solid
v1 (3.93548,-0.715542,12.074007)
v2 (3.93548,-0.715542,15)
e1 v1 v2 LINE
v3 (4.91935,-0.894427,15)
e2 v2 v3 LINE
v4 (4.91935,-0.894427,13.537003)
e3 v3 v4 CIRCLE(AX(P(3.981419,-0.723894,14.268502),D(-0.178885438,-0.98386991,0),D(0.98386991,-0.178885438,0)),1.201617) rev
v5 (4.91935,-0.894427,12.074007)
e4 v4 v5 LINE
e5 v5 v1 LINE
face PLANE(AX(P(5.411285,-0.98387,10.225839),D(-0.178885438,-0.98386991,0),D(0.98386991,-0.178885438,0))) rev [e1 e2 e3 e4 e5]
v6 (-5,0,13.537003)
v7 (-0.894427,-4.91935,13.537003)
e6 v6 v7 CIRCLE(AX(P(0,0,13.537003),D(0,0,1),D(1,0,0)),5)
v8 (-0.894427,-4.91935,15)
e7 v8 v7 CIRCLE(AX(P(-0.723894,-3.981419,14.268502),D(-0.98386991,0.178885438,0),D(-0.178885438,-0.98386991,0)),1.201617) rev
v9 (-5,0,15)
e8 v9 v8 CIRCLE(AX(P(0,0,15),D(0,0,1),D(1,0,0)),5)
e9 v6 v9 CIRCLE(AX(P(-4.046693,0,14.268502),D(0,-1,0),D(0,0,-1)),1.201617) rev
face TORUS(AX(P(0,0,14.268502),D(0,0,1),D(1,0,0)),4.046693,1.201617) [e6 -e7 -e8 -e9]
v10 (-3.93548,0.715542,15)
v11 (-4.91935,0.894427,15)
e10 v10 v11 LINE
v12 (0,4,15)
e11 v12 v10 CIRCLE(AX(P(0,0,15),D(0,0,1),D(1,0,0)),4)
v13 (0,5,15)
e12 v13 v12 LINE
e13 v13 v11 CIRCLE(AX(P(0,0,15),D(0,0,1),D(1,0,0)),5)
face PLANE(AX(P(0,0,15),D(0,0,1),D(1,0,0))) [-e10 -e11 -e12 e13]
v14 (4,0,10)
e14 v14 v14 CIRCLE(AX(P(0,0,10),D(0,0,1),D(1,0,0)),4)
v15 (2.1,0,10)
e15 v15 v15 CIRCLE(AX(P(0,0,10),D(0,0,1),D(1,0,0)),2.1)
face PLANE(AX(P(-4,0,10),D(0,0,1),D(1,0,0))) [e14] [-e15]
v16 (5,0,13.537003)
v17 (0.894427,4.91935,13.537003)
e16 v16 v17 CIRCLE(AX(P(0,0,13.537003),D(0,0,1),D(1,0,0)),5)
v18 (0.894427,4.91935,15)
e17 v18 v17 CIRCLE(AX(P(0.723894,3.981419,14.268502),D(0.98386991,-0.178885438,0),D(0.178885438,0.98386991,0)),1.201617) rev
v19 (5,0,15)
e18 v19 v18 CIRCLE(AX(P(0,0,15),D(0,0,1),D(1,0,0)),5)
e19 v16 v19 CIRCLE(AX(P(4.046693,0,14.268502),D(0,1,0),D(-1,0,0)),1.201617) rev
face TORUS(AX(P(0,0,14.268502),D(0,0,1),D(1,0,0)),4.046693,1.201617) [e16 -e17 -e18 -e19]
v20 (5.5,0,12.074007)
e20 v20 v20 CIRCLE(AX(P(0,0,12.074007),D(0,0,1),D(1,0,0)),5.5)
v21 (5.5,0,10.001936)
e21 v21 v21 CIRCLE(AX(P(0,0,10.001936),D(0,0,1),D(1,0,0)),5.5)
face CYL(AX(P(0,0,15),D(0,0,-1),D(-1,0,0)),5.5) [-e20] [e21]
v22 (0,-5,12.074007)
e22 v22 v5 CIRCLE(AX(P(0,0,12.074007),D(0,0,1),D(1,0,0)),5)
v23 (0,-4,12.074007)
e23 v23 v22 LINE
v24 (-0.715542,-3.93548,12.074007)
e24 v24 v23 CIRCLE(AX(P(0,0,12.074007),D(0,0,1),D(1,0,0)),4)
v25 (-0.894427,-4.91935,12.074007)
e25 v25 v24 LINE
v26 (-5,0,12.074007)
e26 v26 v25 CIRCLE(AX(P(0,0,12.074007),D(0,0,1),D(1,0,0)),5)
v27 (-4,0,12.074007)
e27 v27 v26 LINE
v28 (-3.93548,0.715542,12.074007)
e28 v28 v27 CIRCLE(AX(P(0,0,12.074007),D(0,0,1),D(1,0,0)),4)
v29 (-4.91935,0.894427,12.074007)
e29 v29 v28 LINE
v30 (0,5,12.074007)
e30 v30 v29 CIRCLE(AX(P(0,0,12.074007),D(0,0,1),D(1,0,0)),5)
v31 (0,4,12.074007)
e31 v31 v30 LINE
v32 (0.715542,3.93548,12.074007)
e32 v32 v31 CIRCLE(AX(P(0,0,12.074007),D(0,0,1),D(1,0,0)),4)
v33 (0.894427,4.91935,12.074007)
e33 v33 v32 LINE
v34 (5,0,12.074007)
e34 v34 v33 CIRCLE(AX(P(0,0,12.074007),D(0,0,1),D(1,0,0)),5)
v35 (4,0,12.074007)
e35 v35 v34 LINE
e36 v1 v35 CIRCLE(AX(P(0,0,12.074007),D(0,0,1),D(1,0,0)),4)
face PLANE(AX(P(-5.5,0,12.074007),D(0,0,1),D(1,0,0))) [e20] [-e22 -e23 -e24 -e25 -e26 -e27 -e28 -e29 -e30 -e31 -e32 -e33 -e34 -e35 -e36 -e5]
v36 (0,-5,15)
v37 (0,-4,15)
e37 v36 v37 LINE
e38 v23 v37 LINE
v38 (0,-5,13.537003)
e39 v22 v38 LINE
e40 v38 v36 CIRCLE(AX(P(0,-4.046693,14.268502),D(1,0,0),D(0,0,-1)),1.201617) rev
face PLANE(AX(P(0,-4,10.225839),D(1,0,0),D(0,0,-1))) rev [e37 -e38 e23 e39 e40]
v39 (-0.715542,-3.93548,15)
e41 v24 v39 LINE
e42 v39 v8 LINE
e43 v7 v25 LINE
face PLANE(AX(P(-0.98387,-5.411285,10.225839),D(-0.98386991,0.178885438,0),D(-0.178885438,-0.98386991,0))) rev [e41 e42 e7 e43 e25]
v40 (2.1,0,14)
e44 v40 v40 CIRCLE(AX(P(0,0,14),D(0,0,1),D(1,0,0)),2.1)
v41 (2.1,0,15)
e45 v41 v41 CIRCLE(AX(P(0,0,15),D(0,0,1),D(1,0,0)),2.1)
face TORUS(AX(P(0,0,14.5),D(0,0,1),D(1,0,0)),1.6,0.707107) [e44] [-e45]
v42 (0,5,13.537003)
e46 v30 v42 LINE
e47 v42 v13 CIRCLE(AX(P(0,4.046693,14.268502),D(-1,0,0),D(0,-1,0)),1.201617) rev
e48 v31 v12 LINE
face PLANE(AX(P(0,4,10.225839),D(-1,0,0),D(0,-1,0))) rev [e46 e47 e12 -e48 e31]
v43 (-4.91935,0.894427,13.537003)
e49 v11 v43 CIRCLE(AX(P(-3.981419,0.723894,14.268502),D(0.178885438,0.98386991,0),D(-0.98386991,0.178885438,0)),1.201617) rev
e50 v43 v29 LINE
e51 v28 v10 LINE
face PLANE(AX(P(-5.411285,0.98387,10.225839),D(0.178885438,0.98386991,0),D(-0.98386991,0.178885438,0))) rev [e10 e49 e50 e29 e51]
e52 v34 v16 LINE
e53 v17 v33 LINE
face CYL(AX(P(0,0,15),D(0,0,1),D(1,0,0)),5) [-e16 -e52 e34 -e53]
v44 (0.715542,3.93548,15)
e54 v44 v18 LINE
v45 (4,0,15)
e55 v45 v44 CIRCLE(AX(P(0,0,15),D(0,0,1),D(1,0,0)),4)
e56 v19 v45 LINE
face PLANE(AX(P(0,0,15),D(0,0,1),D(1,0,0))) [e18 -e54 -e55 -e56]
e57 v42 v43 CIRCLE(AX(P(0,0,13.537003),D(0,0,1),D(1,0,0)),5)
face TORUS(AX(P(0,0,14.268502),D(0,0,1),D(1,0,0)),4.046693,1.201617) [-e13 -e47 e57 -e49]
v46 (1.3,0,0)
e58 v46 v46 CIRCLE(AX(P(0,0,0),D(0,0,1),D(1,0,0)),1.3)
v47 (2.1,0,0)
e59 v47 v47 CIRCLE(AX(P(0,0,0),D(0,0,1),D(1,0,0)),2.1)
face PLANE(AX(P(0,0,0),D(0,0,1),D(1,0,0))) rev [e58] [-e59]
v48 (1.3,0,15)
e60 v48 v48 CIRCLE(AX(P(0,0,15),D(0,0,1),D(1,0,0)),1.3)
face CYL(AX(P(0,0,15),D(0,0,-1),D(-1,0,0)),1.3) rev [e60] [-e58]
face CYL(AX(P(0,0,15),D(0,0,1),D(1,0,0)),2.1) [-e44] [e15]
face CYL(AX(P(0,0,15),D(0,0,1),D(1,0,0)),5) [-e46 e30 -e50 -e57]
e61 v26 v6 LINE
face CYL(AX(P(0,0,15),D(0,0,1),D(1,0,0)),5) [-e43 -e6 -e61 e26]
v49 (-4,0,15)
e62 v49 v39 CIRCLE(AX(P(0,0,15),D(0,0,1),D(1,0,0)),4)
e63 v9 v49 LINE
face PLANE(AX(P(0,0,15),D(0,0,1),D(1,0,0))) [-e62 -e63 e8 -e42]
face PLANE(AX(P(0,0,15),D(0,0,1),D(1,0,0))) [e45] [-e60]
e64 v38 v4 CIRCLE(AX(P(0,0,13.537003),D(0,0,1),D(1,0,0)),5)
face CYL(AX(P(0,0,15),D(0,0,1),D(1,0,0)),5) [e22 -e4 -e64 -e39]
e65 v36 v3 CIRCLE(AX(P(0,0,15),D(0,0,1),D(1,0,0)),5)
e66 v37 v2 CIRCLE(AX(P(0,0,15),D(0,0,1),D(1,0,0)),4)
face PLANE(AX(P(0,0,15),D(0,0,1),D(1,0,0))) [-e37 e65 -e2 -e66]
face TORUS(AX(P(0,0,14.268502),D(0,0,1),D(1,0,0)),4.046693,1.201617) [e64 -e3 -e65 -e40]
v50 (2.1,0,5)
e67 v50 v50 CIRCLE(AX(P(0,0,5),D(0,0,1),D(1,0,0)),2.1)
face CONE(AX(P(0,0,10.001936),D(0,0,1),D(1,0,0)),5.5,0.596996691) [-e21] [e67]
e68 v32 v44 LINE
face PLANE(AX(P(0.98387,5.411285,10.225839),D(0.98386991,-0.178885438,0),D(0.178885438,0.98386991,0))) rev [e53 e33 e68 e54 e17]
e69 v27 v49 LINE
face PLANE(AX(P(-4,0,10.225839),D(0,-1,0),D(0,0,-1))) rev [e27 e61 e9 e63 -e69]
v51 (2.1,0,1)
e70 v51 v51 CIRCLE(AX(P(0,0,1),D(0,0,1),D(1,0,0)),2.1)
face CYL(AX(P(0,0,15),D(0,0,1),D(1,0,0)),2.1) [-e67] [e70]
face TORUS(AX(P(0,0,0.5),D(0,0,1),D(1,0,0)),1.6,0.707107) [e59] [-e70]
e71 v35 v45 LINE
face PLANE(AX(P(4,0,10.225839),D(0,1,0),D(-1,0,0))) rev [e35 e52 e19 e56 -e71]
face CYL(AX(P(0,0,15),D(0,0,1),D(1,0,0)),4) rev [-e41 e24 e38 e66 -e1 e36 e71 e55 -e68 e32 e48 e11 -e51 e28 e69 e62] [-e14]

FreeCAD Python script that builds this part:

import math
import FreeCAD as App
import Part
import Sketcher

V = App.Vector

doc = App.newDocument("Part")
body = doc.addObject("PartDesign::Body", "Body")

sketch1 = body.newObject("Sketcher::SketchObject", "Sketch")
sketch1.AttachmentSupport = (doc.getObject("XY_Plane"), [""])
sketch1.MapMode = "FlatFace"
sketch1.addGeometry(Part.Circle(V(0, 0, 0), V(0, 0, 1), 5.5), False)
sketch1.addGeometry(Part.Circle(V(0, 0, 0), V(0, 0, 1), 1.3), False)
sketch1.addConstraint(Sketcher.Constraint("Coincident", 0, 3, -1, 1))
sketch1.addConstraint(Sketcher.Constraint("Coincident", 1, 3, -1, 1))
sketch1.addConstraint(Sketcher.Constraint("Diameter", 0, 11.0))
sketch1.addConstraint(Sketcher.Constraint("Diameter", 1, 2.6))
pad1 = body.newObject("PartDesign::Pad", "Pad")
pad1.Profile = sketch1
pad1.Length = 15

sketch2 = body.newObject("Sketcher::SketchObject", "Sketch001")
sketch2.AttachmentSupport = (doc.getObject("XZ_Plane"), [""])
sketch2.MapMode = "FlatFace"
sketch2.addGeometry(Part.LineSegment(V(-5.5, 10, 0), V(-2.1, 5, 0)), False)
sketch2.addGeometry(Part.LineSegment(V(-2.1, 5, 0), V(-2.1, 1, 0)), False)
sketch2.addGeometry(Part.ArcOfCircle(Part.Circle(V(-1.6, 0.5, 0), V(0, 0, 1), 0.7), math.radians(135), math.radians(225)), False)
sketch2.addGeometry(Part.LineSegment(V(-2.1, 0, 0), V(-5.5, 0, 0)), False)
sketch2.addGeometry(Part.LineSegment(V(-5.5, 0, 0), V(-5.5, 10, 0)), False)
sketch2.addGeometry(Part.LineSegment(V(-4, 15, 0), V(-2.1, 15, 0)), False)
sketch2.addGeometry(Part.ArcOfCircle(Part.Circle(V(-1.6, 14.5, 0), V(0, 0, 1), 0.7), math.radians(135), math.radians(225)), False)
sketch2.addGeometry(Part.LineSegment(V(-2.1, 14, 0), V(-2.1, 10, 0)), False)
sketch2.addGeometry(Part.LineSegment(V(-2.1, 10, 0), V(-4, 10, 0)), False)
sketch2.addGeometry(Part.LineSegment(V(-4, 10, 0), V(-4, 15, 0)), False)
sketch2.addGeometry(Part.LineSegment(V(-5.5, 15, 0), V(-5, 15, 0)), False)
sketch2.addGeometry(Part.ArcOfCircle(Part.Circle(V(-4, 14.3, 0), V(0, 0, 1), 1.2), math.radians(143), math.radians(217)), False)
sketch2.addGeometry(Part.LineSegment(V(-5, 13.5, 0), V(-5, 12.1, 0)), False)
sketch2.addGeometry(Part.LineSegment(V(-5, 12.1, 0), V(-5.5, 12.1, 0)), False)
sketch2.addGeometry(Part.LineSegment(V(-5.5, 12.1, 0), V(-5.5, 15, 0)), False)
sketch2.addConstraint(Sketcher.Constraint("Coincident", 0, 2, 1, 1))
sketch2.addConstraint(Sketcher.Constraint("Coincident", 1, 2, 2, 1))
sketch2.addConstraint(Sketcher.Constraint("Coincident", 2, 2, 3, 1))
sketch2.addConstraint(Sketcher.Constraint("Coincident", 3, 2, 4, 1))
sketch2.addConstraint(Sketcher.Constraint("Coincident", 4, 2, 0, 1))
sketch2.addConstraint(Sketcher.Constraint("Coincident", 5, 2, 6, 1))
sketch2.addConstraint(Sketcher.Constraint("Coincident", 6, 2, 7, 1))
sketch2.addConstraint(Sketcher.Constraint("Coincident", 7, 2, 8, 1))
sketch2.addConstraint(Sketcher.Constraint("Coincident", 8, 2, 9, 1))
sketch2.addConstraint(Sketcher.Constraint("Coincident", 9, 2, 5, 1))
sketch2.addConstraint(Sketcher.Constraint("Coincident", 10, 2, 11, 1))
sketch2.addConstraint(Sketcher.Constraint("Coincident", 11, 2, 12, 1))
sketch2.addConstraint(Sketcher.Constraint("Coincident", 12, 2, 13, 1))
sketch2.addConstraint(Sketcher.Constraint("Coincident", 13, 2, 14, 1))
sketch2.addConstraint(Sketcher.Constraint("Coincident", 14, 2, 10, 1))
sketch2.addConstraint(Sketcher.Constraint("Vertical", 1))
sketch2.addConstraint(Sketcher.Constraint("Horizontal", 3))
sketch2.addConstraint(Sketcher.Constraint("Vertical", 4))
sketch2.addConstraint(Sketcher.Constraint("Horizontal", 5))
sketch2.addConstraint(Sketcher.Constraint("Vertical", 7))
sketch2.addConstraint(Sketcher.Constraint("Horizontal", 8))
sketch2.addConstraint(Sketcher.Constraint("Vertical", 9))
sketch2.addConstraint(Sketcher.Constraint("Horizontal", 10))
sketch2.addConstraint(Sketcher.Constraint("Vertical", 12))
sketch2.addConstraint(Sketcher.Constraint("Horizontal", 13))
sketch2.addConstraint(Sketcher.Constraint("Vertical", 14))
sketch2.addConstraint(Sketcher.Constraint("Equal", 2, 6))
sketch2.addConstraint(Sketcher.Constraint("PointOnObject", 2, 2, -1))
sketch2.addConstraint(Sketcher.Constraint("Horizontal", 9, 2, 10, 2))
sketch2.addConstraint(Sketcher.Constraint("Vertical", 2, 3, 6, 3))
sketch2.addConstraint(Sketcher.Constraint("Vertical", 1, 2, 2, 2))
sketch2.addConstraint(Sketcher.Constraint("Vertical", 2, 2, 5, 2))
sketch2.addConstraint(Sketcher.Constraint("Vertical", 5, 2, 6, 2))
sketch2.addConstraint(Sketcher.Constraint("Vertical", 10, 2, 11, 2))
sketch2.addConstraint(Sketcher.Constraint("Vertical", 4, 2, 13, 2))
sketch2.addConstraint(Sketcher.Constraint("Equal", 1, 7))
sketch2.addConstraint(Sketcher.Constraint("DistanceY", 1, 2, 1, 1, 4.0))
sketch2.addConstraint(Sketcher.Constraint("DistanceY", 9, 1, 9, 2, 5.0))
sketch2.addConstraint(Sketcher.Constraint("DistanceX", 3, 2, 3, 1, 3.4))
sketch2.addConstraint(Sketcher.Constraint("DistanceX", 5, 1, 5, 2, 1.9))
sketch2.addConstraint(Sketcher.Constraint("DistanceX", 10, 1, 10, 2, 0.5))
sketch2.addConstraint(Sketcher.Constraint("DistanceY", -1, 1, 5, 2, 15.0))
sketch2.addConstraint(Sketcher.Constraint("DistanceX", 8, 2, -1, 1, 4.0))
sketch2.addConstraint(Sketcher.Constraint("DistanceX", 2, 3, -1, 1, 1.6))
sketch2.addConstraint(Sketcher.Constraint("Radius", 11, 1.201617))
sketch2.addConstraint(Sketcher.Constraint("DistanceY", -1, 1, 11, 3, 14.268502))
sketch2.addConstraint(Sketcher.Constraint("DistanceY", 4, 1, 4, 2, 10.001936))
sketch2.addConstraint(Sketcher.Constraint("DistanceY", 12, 2, 12, 1, 1.462997))
groove = body.newObject("PartDesign::Groove", "Groove")
groove.Profile = sketch2
groove.ReferenceAxis = (sketch2, ["V_Axis"])
groove.Angle = 360

sketch3 = body.newObject("Sketcher::SketchObject", "Sketch002")
sketch3.AttachmentSupport = (doc.getObject("XY_Plane"), [""])
sketch3.MapMode = "FlatFace"
sketch3.AttachmentOffset = App.Placement(V(0, 0, 12.074007), App.Rotation())
sketch3.addGeometry(Part.LineSegment(V(0, -5.5, 0), V(0, -4, 0)), False)
sketch3.addGeometry(Part.ArcOfCircle(Part.Circle(V(0, 0, 0), V(0, 0, 1), 4), math.radians(-100.3), math.radians(-90)), False)
sketch3.addGeometry(Part.LineSegment(V(-0.7, -3.9, 0), V(-1, -5.4, 0)), False)
sketch3.addGeometry(Part.ArcOfCircle(Part.Circle(V(0, 0, 0), V(0, 0, 1), 5.5), math.radians(-100.3), math.radians(-90)), False)
sketch3.addGeometry(Part.LineSegment(V(-5.5, 0, 0), V(-4, 0, 0)), False)
sketch3.addGeometry(Part.ArcOfCircle(Part.Circle(V(0, 0, 0), V(0, 0, 1), 4), math.radians(169.7), math.radians(180)), False)
sketch3.addGeometry(Part.LineSegment(V(-3.9, 0.7, 0), V(-5.4, 1, 0)), False)
sketch3.addGeometry(Part.ArcOfCircle(Part.Circle(V(0, 0, 0), V(0, 0, 1), 5.5), math.radians(169.7), math.radians(180)), False)
sketch3.addGeometry(Part.LineSegment(V(0, 5.5, 0), V(0, 4, 0)), False)
sketch3.addGeometry(Part.ArcOfCircle(Part.Circle(V(0, 0, 0), V(0, 0, 1), 4), math.radians(79.7), math.radians(90)), False)
sketch3.addGeometry(Part.LineSegment(V(0.7, 3.9, 0), V(1, 5.4, 0)), False)
sketch3.addGeometry(Part.ArcOfCircle(Part.Circle(V(0, 0, 0), V(0, 0, 1), 5.5), math.radians(79.7), math.radians(90)), False)
sketch3.addGeometry(Part.LineSegment(V(5.5, 0, 0), V(4, 0, 0)), False)
sketch3.addGeometry(Part.ArcOfCircle(Part.Circle(V(0, 0, 0), V(0, 0, 1), 4), math.radians(-10.3), math.radians(0)), False)
sketch3.addGeometry(Part.LineSegment(V(3.9, -0.7, 0), V(5.4, -1, 0)), False)
sketch3.addGeometry(Part.ArcOfCircle(Part.Circle(V(0, 0, 0), V(0, 0, 1), 5.5), math.radians(-10.3), math.radians(0)), False)
sketch3.addConstraint(Sketcher.Constraint("Coincident", 0, 2, 1, 2))
sketch3.addConstraint(Sketcher.Constraint("Coincident", 1, 1, 2, 1))
sketch3.addConstraint(Sketcher.Constraint("Coincident", 2, 2, 3, 1))
sketch3.addConstraint(Sketcher.Constraint("Coincident", 3, 2, 0, 1))
sketch3.addConstraint(Sketcher.Constraint("Coincident", 4, 2, 5, 2))
sketch3.addConstraint(Sketcher.Constraint("Coincident", 5, 1, 6, 1))
sketch3.addConstraint(Sketcher.Constraint("Coincident", 6, 2, 7, 1))
sketch3.addConstraint(Sketcher.Constraint("Coincident", 7, 2, 4, 1))
sketch3.addConstraint(Sketcher.Constraint("Coincident", 8, 2, 9, 2))
sketch3.addConstraint(Sketcher.Constraint("Coincident", 9, 1, 10, 1))
sketch3.addConstraint(Sketcher.Constraint("Coincident", 10, 2, 11, 1))
sketch3.addConstraint(Sketcher.Constraint("Coincident", 11, 2, 8, 1))
sketch3.addConstraint(Sketcher.Constraint("Coincident", 12, 2, 13, 2))
sketch3.addConstraint(Sketcher.Constraint("Coincident", 13, 1, 14, 1))
sketch3.addConstraint(Sketcher.Constraint("Coincident", 14, 2, 15, 1))
sketch3.addConstraint(Sketcher.Constraint("Coincident", 15, 2, 12, 1))
sketch3.addConstraint(Sketcher.Constraint("Vertical", 0))
sketch3.addConstraint(Sketcher.Constraint("Horizontal", 4))
sketch3.addConstraint(Sketcher.Constraint("Vertical", 8))
sketch3.addConstraint(Sketcher.Constraint("Horizontal", 12))
sketch3.addConstraint(Sketcher.Constraint("Coincident", 1, 3, -1, 1))
sketch3.addConstraint(Sketcher.Constraint("Coincident", 3, 3, -1, 1))
sketch3.addConstraint(Sketcher.Constraint("Coincident", 5, 3, -1, 1))
sketch3.addConstraint(Sketcher.Constraint("Coincident", 7, 3, -1, 1))
sketch3.addConstraint(Sketcher.Constraint("Coincident", 9, 3, -1, 1))
sketch3.addConstraint(Sketcher.Constraint("Coincident", 11, 3, -1, 1))
sketch3.addConstraint(Sketcher.Constraint("Coincident", 13, 3, -1, 1))
sketch3.addConstraint(Sketcher.Constraint("Coincident", 15, 3, -1, 1))
sketch3.addConstraint(Sketcher.Constraint("Equal", 1, 5))
sketch3.addConstraint(Sketcher.Constraint("Equal", 3, 7))
sketch3.addConstraint(Sketcher.Constraint("Equal", 5, 9))
sketch3.addConstraint(Sketcher.Constraint("Equal", 7, 11))
sketch3.addConstraint(Sketcher.Constraint("Equal", 9, 13))
sketch3.addConstraint(Sketcher.Constraint("Equal", 11, 15))
sketch3.addConstraint(Sketcher.Constraint("PointOnObject", 0, 2, -2))
sketch3.addConstraint(Sketcher.Constraint("PointOnObject", 4, 2, -1))
sketch3.addConstraint(Sketcher.Constraint("PointOnObject", 8, 2, -2))
sketch3.addConstraint(Sketcher.Constraint("PointOnObject", 12, 2, -1))
sketch3.addConstraint(Sketcher.Constraint("Perpendicular", 2, 6))
sketch3.addConstraint(Sketcher.Constraint("Perpendicular", 6, 10))
sketch3.addConstraint(Sketcher.Constraint("Perpendicular", 10, 14))
sketch3.addConstraint(Sketcher.Constraint("Radius", 1, 4.0))
sketch3.addConstraint(Sketcher.Constraint("Radius", 3, 5.5))
sketch3.addConstraint(Sketcher.Constraint("DistanceX", 1, 1, -1, 1, 0.715542))
sketch3.addConstraint(Sketcher.Constraint("DistanceX", 2, 2, -1, 1, 0.98387))
sketch3.addConstraint(Sketcher.Constraint("DistanceX", 5, 1, -1, 1, 3.93548))
sketch3.addConstraint(Sketcher.Constraint("DistanceX", -1, 1, 9, 1, 0.715542))
sketch3.addConstraint(Sketcher.Constraint("DistanceX", -1, 1, 13, 1, 3.93548))
pocket1 = body.newObject("PartDesign::Pocket", "Pocket")
pocket1.Profile = sketch3
pocket1.Length = 2.925993
pocket1.Reversed = True

doc.recompute()
